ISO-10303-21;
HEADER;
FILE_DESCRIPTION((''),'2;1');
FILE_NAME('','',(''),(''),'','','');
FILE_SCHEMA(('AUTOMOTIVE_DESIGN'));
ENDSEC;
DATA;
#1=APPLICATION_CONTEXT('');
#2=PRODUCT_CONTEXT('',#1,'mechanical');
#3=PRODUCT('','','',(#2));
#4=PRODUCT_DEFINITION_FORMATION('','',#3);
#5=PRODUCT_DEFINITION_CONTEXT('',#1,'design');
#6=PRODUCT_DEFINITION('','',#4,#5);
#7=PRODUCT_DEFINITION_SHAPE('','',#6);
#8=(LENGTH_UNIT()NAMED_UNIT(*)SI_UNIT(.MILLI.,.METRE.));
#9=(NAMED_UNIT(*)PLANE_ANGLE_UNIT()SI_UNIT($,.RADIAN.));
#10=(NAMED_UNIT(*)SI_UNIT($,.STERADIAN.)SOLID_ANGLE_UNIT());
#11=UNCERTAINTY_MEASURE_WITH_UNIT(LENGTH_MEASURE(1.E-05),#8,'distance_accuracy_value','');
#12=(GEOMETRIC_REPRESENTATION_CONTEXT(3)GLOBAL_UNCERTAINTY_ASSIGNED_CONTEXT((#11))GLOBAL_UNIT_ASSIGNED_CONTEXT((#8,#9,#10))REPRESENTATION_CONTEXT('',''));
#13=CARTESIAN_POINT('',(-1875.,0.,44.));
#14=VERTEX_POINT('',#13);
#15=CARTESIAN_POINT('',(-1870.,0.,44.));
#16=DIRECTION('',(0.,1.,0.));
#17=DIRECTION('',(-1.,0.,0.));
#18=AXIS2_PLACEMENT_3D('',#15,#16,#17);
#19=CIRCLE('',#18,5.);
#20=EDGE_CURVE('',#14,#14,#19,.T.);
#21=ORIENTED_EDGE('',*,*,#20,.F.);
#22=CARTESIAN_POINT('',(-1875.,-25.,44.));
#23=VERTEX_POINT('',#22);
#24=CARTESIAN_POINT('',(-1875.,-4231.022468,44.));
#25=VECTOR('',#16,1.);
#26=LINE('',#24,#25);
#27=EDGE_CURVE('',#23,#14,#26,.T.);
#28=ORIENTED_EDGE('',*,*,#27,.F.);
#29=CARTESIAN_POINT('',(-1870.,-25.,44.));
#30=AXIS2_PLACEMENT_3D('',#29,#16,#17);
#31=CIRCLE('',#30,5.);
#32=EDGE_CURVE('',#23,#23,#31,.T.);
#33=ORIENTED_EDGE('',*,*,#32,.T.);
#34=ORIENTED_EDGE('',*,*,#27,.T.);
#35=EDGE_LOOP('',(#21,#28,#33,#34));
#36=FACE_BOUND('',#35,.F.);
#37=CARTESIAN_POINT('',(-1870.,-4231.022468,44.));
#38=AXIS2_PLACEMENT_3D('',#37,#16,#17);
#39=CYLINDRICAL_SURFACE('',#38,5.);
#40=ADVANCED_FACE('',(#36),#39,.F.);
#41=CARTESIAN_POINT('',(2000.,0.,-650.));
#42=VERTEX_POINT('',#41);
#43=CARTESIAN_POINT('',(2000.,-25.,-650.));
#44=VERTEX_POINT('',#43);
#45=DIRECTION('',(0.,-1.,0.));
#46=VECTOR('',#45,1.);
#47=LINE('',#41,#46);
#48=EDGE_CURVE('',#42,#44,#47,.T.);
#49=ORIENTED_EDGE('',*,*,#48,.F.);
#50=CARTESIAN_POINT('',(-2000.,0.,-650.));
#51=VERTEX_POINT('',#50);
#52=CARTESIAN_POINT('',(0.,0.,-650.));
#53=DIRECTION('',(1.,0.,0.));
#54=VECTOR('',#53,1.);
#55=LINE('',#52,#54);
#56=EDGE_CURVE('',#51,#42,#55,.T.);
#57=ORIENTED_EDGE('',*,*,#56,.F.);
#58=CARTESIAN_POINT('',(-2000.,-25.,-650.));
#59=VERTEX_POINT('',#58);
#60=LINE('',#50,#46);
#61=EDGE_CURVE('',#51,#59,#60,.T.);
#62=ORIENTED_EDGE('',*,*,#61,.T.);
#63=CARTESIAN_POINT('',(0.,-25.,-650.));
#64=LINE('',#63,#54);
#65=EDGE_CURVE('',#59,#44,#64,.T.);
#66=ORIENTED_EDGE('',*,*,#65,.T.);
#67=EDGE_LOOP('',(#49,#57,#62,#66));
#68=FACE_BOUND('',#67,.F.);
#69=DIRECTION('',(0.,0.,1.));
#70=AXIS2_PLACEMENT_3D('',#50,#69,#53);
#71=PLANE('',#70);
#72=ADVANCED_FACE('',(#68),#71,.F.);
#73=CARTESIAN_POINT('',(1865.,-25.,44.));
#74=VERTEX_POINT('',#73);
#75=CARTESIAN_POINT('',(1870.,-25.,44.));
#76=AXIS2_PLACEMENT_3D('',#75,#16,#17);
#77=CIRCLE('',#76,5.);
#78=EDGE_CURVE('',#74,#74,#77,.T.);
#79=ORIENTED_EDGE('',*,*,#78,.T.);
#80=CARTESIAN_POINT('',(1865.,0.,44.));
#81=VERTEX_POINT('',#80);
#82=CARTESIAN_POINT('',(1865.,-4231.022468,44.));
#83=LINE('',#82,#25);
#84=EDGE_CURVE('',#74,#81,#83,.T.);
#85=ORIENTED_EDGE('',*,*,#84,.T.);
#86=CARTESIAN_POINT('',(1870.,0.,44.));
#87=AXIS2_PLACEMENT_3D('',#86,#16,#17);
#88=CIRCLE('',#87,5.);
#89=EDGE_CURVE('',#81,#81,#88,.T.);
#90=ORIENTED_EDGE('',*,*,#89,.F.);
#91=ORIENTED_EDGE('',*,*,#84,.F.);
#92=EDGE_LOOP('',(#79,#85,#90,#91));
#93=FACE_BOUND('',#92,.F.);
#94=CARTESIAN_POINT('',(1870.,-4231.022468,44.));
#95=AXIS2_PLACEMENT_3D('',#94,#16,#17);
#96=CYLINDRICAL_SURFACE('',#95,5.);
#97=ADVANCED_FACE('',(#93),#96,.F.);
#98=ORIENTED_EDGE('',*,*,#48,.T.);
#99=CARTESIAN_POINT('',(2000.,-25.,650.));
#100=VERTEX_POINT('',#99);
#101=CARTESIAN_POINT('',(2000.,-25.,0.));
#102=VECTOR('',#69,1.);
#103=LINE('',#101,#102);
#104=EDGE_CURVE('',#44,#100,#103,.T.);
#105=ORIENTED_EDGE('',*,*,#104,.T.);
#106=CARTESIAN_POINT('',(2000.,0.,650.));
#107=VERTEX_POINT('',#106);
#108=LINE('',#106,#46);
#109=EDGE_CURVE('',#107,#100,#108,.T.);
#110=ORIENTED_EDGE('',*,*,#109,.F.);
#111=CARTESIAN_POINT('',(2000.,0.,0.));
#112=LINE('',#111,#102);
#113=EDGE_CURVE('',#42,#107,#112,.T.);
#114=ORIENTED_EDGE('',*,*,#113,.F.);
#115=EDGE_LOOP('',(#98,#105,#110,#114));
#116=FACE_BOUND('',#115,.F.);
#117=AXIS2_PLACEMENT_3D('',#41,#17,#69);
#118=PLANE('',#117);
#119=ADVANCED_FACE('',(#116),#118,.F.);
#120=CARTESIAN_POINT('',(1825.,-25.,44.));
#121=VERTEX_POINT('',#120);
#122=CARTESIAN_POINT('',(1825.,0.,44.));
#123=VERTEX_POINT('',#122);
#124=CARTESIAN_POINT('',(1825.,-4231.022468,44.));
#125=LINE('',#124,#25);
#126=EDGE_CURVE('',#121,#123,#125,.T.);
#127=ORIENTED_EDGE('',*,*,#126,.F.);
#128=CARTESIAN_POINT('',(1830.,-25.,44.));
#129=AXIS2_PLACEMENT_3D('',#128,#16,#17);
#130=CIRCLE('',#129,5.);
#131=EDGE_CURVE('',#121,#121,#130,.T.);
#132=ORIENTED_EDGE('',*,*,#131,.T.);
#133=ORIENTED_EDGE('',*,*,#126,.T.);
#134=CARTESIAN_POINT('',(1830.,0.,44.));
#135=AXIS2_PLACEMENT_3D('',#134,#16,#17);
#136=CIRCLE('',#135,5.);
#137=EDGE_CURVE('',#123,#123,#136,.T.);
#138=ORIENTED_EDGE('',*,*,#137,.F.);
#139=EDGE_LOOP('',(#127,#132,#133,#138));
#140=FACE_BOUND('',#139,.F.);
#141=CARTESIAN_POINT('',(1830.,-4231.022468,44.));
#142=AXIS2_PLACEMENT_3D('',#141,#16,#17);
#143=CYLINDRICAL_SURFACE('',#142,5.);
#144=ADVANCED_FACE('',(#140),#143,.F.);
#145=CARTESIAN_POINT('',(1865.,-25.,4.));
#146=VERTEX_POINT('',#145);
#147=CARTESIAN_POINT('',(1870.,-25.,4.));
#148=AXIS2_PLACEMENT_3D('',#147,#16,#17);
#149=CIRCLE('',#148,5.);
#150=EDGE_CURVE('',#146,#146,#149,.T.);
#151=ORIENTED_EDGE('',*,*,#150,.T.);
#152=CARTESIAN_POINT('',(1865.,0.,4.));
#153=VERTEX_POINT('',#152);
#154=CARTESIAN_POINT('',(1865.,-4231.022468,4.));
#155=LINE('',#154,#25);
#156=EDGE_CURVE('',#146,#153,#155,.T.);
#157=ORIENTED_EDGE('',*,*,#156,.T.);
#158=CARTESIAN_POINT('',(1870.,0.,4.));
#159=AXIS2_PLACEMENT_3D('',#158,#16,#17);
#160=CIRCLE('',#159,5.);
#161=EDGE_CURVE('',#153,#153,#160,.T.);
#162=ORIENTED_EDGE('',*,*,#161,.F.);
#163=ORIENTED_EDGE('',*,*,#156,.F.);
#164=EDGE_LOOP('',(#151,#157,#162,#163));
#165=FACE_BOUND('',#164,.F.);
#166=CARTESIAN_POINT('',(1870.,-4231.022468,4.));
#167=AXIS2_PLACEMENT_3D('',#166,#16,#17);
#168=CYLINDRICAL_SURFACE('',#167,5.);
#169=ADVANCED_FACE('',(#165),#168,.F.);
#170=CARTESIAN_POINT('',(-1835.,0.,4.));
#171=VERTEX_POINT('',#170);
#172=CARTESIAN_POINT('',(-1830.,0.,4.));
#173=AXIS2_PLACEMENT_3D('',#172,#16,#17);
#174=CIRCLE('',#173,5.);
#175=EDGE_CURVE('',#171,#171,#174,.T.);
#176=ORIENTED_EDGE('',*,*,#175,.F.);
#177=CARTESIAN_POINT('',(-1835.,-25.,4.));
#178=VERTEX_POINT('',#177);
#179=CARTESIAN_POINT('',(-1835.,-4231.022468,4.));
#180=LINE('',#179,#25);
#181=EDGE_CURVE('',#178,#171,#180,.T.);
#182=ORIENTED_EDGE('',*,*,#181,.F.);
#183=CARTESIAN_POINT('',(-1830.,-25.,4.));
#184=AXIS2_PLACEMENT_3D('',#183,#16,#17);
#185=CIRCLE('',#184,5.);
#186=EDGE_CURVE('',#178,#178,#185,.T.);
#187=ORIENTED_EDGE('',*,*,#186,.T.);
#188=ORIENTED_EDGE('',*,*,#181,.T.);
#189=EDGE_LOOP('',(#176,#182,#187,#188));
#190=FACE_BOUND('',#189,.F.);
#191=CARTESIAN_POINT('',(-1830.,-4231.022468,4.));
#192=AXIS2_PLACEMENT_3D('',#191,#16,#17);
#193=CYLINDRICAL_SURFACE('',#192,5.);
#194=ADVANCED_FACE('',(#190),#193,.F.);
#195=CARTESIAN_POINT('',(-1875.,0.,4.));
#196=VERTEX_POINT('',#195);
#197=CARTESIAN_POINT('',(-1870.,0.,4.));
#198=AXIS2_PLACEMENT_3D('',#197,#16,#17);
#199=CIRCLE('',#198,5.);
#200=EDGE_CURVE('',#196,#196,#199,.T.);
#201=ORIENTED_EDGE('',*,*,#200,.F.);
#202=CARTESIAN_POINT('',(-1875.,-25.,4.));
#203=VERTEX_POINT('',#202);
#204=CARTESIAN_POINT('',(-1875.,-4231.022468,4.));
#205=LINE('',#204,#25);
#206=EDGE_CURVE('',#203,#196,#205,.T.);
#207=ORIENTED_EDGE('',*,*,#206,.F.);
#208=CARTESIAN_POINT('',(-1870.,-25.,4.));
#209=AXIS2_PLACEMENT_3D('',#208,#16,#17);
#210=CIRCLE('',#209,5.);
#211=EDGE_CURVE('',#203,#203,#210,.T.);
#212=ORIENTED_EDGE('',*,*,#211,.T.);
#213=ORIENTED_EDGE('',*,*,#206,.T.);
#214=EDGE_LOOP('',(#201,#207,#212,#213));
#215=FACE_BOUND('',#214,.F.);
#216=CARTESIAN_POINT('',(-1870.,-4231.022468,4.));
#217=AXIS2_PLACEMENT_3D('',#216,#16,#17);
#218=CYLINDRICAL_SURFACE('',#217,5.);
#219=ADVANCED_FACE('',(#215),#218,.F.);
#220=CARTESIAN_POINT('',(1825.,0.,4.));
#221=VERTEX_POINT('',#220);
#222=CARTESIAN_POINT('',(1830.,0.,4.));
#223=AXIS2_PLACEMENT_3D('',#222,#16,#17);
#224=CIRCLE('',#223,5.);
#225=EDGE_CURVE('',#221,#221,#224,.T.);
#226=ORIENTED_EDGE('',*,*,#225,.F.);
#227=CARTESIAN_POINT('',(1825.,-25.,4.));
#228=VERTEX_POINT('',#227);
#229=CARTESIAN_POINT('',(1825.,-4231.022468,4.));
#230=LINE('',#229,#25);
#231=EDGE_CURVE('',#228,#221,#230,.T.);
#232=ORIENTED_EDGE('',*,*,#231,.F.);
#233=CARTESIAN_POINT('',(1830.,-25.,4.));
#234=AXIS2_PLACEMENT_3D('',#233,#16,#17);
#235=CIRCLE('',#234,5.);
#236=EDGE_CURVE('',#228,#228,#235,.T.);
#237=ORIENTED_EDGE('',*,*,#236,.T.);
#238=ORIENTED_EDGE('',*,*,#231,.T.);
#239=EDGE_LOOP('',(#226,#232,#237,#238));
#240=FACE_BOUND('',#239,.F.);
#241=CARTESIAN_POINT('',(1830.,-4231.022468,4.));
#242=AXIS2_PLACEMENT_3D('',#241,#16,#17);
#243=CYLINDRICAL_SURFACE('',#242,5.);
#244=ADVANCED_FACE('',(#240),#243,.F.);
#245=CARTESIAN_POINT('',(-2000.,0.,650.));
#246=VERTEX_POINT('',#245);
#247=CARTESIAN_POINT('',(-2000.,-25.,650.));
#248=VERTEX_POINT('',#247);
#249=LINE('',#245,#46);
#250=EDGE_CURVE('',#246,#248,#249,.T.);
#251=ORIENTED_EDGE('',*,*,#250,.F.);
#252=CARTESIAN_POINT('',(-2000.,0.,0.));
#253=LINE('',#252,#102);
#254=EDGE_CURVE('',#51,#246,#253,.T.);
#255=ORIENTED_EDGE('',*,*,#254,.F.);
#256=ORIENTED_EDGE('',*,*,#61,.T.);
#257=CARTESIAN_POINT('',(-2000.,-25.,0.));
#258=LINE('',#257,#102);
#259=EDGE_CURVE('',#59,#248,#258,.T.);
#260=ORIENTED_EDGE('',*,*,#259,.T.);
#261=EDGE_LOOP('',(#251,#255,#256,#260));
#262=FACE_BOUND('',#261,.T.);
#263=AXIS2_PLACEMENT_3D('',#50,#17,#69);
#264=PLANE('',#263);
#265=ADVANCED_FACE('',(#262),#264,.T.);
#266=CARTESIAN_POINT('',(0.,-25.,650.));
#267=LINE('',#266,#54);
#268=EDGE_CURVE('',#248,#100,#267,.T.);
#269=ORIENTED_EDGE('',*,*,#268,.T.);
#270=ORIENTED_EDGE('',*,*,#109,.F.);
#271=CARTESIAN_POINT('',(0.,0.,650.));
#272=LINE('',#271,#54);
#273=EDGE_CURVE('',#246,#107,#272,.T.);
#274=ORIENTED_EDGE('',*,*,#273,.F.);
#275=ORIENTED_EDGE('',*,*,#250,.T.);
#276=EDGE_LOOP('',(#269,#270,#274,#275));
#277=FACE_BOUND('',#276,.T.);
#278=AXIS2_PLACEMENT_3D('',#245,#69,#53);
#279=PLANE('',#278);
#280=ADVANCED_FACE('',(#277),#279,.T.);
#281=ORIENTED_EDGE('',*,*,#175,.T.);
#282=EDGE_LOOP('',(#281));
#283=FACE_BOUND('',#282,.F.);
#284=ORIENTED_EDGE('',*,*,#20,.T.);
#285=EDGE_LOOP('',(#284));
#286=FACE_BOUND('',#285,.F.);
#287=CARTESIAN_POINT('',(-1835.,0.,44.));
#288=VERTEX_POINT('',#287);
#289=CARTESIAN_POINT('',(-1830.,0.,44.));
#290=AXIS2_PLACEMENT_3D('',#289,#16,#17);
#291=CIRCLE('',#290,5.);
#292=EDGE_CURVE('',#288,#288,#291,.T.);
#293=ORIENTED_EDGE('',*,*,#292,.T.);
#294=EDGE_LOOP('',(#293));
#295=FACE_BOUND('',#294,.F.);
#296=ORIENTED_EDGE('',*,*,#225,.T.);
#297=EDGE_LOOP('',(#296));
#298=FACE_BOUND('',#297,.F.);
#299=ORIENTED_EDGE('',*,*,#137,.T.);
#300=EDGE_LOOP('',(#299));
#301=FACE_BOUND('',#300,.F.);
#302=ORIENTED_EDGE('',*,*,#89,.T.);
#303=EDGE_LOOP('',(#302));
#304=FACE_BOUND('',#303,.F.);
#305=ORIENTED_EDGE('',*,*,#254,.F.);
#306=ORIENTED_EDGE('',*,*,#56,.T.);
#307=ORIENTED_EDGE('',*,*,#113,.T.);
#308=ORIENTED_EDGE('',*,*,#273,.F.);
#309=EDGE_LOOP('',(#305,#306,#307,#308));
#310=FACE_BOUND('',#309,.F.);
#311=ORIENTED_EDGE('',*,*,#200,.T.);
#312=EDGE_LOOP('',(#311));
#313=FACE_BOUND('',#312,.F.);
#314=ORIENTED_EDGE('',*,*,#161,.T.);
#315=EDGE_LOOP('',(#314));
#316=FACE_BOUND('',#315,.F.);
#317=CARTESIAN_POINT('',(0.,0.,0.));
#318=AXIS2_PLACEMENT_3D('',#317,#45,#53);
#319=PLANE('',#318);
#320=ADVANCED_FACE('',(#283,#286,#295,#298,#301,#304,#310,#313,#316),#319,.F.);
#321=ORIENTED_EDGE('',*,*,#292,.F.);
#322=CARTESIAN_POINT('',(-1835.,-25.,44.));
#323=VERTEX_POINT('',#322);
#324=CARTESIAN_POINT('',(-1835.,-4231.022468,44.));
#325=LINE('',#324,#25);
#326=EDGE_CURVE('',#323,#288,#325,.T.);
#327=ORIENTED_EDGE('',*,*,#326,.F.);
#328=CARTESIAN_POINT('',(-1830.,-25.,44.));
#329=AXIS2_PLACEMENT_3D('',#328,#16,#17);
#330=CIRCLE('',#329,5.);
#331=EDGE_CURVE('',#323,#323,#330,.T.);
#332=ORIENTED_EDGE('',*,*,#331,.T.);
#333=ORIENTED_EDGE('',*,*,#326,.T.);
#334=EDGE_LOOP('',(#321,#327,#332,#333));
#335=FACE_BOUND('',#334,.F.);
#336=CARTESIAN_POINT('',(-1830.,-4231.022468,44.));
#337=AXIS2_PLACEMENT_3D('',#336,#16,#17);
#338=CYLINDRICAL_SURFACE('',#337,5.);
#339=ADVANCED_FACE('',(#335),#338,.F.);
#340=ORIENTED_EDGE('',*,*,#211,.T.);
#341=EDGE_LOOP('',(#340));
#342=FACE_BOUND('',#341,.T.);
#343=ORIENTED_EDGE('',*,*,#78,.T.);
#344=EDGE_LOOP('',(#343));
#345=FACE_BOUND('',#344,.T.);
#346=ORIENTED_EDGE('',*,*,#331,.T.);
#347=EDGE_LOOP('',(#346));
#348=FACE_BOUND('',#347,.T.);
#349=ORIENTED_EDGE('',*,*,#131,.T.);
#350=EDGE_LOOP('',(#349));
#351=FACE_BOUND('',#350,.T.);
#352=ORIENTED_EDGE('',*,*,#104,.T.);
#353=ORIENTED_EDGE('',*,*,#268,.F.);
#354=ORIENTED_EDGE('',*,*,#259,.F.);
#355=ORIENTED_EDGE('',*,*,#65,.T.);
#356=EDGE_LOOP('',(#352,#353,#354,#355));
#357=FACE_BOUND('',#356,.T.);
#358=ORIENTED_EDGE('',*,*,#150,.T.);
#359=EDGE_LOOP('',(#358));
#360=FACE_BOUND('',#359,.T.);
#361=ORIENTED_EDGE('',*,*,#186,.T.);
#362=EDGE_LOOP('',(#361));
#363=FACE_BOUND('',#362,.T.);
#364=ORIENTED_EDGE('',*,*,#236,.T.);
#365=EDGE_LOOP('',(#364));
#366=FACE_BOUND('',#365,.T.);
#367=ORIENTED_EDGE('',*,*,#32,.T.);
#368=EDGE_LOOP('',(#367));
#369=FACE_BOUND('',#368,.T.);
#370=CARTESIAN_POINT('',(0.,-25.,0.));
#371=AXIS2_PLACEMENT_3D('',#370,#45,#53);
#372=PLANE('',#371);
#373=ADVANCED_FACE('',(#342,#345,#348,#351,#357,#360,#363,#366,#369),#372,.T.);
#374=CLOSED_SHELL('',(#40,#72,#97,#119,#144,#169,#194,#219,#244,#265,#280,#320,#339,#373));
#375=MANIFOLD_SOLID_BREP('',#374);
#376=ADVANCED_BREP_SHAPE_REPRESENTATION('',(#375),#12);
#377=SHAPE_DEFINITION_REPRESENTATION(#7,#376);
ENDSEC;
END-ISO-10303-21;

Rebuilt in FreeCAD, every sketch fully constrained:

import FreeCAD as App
import Part
import Sketcher

doc = App.newDocument("Part")
body = doc.addObject("PartDesign::Body", "Body")

sketch1 = body.newObject("Sketcher::SketchObject", "Sketch")
sketch1.AttachmentSupport = (doc.getObject("XZ_Plane"), [""])
sketch1.MapMode = "FlatFace"
sketch1.addGeometry([
    Part.LineSegment(App.Vector(-2000, 650, 0), App.Vector(-2000, -650, 0)),
    Part.LineSegment(App.Vector(-2000, -650, 0), App.Vector(2000, -650, 0)),
    Part.LineSegment(App.Vector(2000, -650, 0), App.Vector(2000, 650, 0)),
    Part.LineSegment(App.Vector(2000, 650, 0), App.Vector(-2000, 650, 0)),
], False)
sketch1.addConstraint([
    Sketcher.Constraint("Coincident", 0, 2, 1, 1),
    Sketcher.Constraint("Coincident", 1, 2, 2, 1),
    Sketcher.Constraint("Coincident", 2, 2, 3, 1),
    Sketcher.Constraint("Coincident", 3, 2, 0, 1),
    Sketcher.Constraint("Vertical", 0),
    Sketcher.Constraint("Horizontal", 1),
    Sketcher.Constraint("Vertical", 2),
    Sketcher.Constraint("Horizontal", 3),
    Sketcher.Constraint("Symmetric", 0, 2, 2, 2, -1, 1),
    Sketcher.Constraint("DistanceX", 1, 1, 1, 2, 4000.0),
    Sketcher.Constraint("DistanceY", 0, 2, 0, 1, 1300.0),
])
pad1 = body.newObject("PartDesign::Pad", "Pad")
pad1.Profile = sketch1
pad1.Length = 25

sketch2 = body.newObject("Sketcher::SketchObject", "Sketch001")
sketch2.AttachmentSupport = (doc.getObject("XZ_Plane"), [""])
sketch2.MapMode = "FlatFace"
sketch2.AttachmentOffset = App.Placement(App.Vector(0, 0, 25), App.Rotation())
sketch2.addGeometry([
    Part.Circle(App.Vector(-1870, 44, 0), App.Vector(0, 0, 1), 5),
    Part.Circle(App.Vector(-1830, 44, 0), App.Vector(0, 0, 1), 5),
    Part.Circle(App.Vector(-1830, 4, 0), App.Vector(0, 0, 1), 5),
    Part.Circle(App.Vector(-1870, 4, 0), App.Vector(0, 0, 1), 5),
], False)
sketch2.addConstraint([
    Sketcher.Constraint("Equal", 0, 1),
    Sketcher.Constraint("Equal", 1, 2),
    Sketcher.Constraint("Equal", 2, 3),
    Sketcher.Constraint("Horizontal", 0, 3, 1, 3),
    Sketcher.Constraint("Horizontal", 2, 3, 3, 3),
    Sketcher.Constraint("Vertical", 1, 3, 2, 3),
    Sketcher.Constraint("Vertical", 0, 3, 3, 3),
    Sketcher.Constraint("Diameter", 0, 10.0),
    Sketcher.Constraint("DistanceX", 0, 3, -1, 1, 1870.0),
    Sketcher.Constraint("DistanceY", -1, 1, 0, 3, 44.0),
    Sketcher.Constraint("DistanceX", 1, 3, -1, 1, 1830.0),
    Sketcher.Constraint("DistanceY", -1, 1, 2, 3, 4.0),
])
doc.recompute()
hole = body.newObject("PartDesign::Hole", "Hole")
hole.Profile = sketch2
hole.ThreadType = "None"
hole.Diameter = 10
hole.DepthType = "ThroughAll"

sketch3 = body.newObject("Sketcher::SketchObject", "Sketch002")
sketch3.AttachmentSupport = (doc.getObject("XZ_Plane"), [""])
sketch3.MapMode = "FlatFace"
sketch3.AttachmentOffset = App.Placement(App.Vector(0, 0, 25), App.Rotation())
sketch3.addGeometry([
    Part.Circle(App.Vector(1830, 44, 0), App.Vector(0, 0, 1), 5),
    Part.Circle(App.Vector(1870, 44, 0), App.Vector(0, 0, 1), 5),
    Part.Circle(App.Vector(1870, 4, 0), App.Vector(0, 0, 1), 5),
    Part.Circle(App.Vector(1830, 4, 0), App.Vector(0, 0, 1), 5),
], False)
sketch3.addConstraint([
    Sketcher.Constraint("Equal", 0, 1),
    Sketcher.Constraint("Equal", 1, 2),
    Sketcher.Constraint("Equal", 2, 3),
    Sketcher.Constraint("Horizontal", 0, 3, 1, 3),
    Sketcher.Constraint("Horizontal", 2, 3, 3, 3),
    Sketcher.Constraint("Vertical", 1, 3, 2, 3),
    Sketcher.Constraint("Vertical", 0, 3, 3, 3),
    Sketcher.Constraint("Diameter", 0, 10.0),
    Sketcher.Constraint("DistanceX", -1, 1, 0, 3, 1830.0),
    Sketcher.Constraint("DistanceY", -1, 1, 0, 3, 44.0),
    Sketcher.Constraint("DistanceX", -1, 1, 1, 3, 1870.0),
    Sketcher.Constraint("DistanceY", -1, 1, 2, 3, 4.0),
])
doc.recompute()
hole2 = body.newObject("PartDesign::Hole", "Hole001")
hole2.Profile = sketch3
hole2.ThreadType = "None"
hole2.Diameter = 10
hole2.DepthType = "ThroughAll"

doc.recompute()
